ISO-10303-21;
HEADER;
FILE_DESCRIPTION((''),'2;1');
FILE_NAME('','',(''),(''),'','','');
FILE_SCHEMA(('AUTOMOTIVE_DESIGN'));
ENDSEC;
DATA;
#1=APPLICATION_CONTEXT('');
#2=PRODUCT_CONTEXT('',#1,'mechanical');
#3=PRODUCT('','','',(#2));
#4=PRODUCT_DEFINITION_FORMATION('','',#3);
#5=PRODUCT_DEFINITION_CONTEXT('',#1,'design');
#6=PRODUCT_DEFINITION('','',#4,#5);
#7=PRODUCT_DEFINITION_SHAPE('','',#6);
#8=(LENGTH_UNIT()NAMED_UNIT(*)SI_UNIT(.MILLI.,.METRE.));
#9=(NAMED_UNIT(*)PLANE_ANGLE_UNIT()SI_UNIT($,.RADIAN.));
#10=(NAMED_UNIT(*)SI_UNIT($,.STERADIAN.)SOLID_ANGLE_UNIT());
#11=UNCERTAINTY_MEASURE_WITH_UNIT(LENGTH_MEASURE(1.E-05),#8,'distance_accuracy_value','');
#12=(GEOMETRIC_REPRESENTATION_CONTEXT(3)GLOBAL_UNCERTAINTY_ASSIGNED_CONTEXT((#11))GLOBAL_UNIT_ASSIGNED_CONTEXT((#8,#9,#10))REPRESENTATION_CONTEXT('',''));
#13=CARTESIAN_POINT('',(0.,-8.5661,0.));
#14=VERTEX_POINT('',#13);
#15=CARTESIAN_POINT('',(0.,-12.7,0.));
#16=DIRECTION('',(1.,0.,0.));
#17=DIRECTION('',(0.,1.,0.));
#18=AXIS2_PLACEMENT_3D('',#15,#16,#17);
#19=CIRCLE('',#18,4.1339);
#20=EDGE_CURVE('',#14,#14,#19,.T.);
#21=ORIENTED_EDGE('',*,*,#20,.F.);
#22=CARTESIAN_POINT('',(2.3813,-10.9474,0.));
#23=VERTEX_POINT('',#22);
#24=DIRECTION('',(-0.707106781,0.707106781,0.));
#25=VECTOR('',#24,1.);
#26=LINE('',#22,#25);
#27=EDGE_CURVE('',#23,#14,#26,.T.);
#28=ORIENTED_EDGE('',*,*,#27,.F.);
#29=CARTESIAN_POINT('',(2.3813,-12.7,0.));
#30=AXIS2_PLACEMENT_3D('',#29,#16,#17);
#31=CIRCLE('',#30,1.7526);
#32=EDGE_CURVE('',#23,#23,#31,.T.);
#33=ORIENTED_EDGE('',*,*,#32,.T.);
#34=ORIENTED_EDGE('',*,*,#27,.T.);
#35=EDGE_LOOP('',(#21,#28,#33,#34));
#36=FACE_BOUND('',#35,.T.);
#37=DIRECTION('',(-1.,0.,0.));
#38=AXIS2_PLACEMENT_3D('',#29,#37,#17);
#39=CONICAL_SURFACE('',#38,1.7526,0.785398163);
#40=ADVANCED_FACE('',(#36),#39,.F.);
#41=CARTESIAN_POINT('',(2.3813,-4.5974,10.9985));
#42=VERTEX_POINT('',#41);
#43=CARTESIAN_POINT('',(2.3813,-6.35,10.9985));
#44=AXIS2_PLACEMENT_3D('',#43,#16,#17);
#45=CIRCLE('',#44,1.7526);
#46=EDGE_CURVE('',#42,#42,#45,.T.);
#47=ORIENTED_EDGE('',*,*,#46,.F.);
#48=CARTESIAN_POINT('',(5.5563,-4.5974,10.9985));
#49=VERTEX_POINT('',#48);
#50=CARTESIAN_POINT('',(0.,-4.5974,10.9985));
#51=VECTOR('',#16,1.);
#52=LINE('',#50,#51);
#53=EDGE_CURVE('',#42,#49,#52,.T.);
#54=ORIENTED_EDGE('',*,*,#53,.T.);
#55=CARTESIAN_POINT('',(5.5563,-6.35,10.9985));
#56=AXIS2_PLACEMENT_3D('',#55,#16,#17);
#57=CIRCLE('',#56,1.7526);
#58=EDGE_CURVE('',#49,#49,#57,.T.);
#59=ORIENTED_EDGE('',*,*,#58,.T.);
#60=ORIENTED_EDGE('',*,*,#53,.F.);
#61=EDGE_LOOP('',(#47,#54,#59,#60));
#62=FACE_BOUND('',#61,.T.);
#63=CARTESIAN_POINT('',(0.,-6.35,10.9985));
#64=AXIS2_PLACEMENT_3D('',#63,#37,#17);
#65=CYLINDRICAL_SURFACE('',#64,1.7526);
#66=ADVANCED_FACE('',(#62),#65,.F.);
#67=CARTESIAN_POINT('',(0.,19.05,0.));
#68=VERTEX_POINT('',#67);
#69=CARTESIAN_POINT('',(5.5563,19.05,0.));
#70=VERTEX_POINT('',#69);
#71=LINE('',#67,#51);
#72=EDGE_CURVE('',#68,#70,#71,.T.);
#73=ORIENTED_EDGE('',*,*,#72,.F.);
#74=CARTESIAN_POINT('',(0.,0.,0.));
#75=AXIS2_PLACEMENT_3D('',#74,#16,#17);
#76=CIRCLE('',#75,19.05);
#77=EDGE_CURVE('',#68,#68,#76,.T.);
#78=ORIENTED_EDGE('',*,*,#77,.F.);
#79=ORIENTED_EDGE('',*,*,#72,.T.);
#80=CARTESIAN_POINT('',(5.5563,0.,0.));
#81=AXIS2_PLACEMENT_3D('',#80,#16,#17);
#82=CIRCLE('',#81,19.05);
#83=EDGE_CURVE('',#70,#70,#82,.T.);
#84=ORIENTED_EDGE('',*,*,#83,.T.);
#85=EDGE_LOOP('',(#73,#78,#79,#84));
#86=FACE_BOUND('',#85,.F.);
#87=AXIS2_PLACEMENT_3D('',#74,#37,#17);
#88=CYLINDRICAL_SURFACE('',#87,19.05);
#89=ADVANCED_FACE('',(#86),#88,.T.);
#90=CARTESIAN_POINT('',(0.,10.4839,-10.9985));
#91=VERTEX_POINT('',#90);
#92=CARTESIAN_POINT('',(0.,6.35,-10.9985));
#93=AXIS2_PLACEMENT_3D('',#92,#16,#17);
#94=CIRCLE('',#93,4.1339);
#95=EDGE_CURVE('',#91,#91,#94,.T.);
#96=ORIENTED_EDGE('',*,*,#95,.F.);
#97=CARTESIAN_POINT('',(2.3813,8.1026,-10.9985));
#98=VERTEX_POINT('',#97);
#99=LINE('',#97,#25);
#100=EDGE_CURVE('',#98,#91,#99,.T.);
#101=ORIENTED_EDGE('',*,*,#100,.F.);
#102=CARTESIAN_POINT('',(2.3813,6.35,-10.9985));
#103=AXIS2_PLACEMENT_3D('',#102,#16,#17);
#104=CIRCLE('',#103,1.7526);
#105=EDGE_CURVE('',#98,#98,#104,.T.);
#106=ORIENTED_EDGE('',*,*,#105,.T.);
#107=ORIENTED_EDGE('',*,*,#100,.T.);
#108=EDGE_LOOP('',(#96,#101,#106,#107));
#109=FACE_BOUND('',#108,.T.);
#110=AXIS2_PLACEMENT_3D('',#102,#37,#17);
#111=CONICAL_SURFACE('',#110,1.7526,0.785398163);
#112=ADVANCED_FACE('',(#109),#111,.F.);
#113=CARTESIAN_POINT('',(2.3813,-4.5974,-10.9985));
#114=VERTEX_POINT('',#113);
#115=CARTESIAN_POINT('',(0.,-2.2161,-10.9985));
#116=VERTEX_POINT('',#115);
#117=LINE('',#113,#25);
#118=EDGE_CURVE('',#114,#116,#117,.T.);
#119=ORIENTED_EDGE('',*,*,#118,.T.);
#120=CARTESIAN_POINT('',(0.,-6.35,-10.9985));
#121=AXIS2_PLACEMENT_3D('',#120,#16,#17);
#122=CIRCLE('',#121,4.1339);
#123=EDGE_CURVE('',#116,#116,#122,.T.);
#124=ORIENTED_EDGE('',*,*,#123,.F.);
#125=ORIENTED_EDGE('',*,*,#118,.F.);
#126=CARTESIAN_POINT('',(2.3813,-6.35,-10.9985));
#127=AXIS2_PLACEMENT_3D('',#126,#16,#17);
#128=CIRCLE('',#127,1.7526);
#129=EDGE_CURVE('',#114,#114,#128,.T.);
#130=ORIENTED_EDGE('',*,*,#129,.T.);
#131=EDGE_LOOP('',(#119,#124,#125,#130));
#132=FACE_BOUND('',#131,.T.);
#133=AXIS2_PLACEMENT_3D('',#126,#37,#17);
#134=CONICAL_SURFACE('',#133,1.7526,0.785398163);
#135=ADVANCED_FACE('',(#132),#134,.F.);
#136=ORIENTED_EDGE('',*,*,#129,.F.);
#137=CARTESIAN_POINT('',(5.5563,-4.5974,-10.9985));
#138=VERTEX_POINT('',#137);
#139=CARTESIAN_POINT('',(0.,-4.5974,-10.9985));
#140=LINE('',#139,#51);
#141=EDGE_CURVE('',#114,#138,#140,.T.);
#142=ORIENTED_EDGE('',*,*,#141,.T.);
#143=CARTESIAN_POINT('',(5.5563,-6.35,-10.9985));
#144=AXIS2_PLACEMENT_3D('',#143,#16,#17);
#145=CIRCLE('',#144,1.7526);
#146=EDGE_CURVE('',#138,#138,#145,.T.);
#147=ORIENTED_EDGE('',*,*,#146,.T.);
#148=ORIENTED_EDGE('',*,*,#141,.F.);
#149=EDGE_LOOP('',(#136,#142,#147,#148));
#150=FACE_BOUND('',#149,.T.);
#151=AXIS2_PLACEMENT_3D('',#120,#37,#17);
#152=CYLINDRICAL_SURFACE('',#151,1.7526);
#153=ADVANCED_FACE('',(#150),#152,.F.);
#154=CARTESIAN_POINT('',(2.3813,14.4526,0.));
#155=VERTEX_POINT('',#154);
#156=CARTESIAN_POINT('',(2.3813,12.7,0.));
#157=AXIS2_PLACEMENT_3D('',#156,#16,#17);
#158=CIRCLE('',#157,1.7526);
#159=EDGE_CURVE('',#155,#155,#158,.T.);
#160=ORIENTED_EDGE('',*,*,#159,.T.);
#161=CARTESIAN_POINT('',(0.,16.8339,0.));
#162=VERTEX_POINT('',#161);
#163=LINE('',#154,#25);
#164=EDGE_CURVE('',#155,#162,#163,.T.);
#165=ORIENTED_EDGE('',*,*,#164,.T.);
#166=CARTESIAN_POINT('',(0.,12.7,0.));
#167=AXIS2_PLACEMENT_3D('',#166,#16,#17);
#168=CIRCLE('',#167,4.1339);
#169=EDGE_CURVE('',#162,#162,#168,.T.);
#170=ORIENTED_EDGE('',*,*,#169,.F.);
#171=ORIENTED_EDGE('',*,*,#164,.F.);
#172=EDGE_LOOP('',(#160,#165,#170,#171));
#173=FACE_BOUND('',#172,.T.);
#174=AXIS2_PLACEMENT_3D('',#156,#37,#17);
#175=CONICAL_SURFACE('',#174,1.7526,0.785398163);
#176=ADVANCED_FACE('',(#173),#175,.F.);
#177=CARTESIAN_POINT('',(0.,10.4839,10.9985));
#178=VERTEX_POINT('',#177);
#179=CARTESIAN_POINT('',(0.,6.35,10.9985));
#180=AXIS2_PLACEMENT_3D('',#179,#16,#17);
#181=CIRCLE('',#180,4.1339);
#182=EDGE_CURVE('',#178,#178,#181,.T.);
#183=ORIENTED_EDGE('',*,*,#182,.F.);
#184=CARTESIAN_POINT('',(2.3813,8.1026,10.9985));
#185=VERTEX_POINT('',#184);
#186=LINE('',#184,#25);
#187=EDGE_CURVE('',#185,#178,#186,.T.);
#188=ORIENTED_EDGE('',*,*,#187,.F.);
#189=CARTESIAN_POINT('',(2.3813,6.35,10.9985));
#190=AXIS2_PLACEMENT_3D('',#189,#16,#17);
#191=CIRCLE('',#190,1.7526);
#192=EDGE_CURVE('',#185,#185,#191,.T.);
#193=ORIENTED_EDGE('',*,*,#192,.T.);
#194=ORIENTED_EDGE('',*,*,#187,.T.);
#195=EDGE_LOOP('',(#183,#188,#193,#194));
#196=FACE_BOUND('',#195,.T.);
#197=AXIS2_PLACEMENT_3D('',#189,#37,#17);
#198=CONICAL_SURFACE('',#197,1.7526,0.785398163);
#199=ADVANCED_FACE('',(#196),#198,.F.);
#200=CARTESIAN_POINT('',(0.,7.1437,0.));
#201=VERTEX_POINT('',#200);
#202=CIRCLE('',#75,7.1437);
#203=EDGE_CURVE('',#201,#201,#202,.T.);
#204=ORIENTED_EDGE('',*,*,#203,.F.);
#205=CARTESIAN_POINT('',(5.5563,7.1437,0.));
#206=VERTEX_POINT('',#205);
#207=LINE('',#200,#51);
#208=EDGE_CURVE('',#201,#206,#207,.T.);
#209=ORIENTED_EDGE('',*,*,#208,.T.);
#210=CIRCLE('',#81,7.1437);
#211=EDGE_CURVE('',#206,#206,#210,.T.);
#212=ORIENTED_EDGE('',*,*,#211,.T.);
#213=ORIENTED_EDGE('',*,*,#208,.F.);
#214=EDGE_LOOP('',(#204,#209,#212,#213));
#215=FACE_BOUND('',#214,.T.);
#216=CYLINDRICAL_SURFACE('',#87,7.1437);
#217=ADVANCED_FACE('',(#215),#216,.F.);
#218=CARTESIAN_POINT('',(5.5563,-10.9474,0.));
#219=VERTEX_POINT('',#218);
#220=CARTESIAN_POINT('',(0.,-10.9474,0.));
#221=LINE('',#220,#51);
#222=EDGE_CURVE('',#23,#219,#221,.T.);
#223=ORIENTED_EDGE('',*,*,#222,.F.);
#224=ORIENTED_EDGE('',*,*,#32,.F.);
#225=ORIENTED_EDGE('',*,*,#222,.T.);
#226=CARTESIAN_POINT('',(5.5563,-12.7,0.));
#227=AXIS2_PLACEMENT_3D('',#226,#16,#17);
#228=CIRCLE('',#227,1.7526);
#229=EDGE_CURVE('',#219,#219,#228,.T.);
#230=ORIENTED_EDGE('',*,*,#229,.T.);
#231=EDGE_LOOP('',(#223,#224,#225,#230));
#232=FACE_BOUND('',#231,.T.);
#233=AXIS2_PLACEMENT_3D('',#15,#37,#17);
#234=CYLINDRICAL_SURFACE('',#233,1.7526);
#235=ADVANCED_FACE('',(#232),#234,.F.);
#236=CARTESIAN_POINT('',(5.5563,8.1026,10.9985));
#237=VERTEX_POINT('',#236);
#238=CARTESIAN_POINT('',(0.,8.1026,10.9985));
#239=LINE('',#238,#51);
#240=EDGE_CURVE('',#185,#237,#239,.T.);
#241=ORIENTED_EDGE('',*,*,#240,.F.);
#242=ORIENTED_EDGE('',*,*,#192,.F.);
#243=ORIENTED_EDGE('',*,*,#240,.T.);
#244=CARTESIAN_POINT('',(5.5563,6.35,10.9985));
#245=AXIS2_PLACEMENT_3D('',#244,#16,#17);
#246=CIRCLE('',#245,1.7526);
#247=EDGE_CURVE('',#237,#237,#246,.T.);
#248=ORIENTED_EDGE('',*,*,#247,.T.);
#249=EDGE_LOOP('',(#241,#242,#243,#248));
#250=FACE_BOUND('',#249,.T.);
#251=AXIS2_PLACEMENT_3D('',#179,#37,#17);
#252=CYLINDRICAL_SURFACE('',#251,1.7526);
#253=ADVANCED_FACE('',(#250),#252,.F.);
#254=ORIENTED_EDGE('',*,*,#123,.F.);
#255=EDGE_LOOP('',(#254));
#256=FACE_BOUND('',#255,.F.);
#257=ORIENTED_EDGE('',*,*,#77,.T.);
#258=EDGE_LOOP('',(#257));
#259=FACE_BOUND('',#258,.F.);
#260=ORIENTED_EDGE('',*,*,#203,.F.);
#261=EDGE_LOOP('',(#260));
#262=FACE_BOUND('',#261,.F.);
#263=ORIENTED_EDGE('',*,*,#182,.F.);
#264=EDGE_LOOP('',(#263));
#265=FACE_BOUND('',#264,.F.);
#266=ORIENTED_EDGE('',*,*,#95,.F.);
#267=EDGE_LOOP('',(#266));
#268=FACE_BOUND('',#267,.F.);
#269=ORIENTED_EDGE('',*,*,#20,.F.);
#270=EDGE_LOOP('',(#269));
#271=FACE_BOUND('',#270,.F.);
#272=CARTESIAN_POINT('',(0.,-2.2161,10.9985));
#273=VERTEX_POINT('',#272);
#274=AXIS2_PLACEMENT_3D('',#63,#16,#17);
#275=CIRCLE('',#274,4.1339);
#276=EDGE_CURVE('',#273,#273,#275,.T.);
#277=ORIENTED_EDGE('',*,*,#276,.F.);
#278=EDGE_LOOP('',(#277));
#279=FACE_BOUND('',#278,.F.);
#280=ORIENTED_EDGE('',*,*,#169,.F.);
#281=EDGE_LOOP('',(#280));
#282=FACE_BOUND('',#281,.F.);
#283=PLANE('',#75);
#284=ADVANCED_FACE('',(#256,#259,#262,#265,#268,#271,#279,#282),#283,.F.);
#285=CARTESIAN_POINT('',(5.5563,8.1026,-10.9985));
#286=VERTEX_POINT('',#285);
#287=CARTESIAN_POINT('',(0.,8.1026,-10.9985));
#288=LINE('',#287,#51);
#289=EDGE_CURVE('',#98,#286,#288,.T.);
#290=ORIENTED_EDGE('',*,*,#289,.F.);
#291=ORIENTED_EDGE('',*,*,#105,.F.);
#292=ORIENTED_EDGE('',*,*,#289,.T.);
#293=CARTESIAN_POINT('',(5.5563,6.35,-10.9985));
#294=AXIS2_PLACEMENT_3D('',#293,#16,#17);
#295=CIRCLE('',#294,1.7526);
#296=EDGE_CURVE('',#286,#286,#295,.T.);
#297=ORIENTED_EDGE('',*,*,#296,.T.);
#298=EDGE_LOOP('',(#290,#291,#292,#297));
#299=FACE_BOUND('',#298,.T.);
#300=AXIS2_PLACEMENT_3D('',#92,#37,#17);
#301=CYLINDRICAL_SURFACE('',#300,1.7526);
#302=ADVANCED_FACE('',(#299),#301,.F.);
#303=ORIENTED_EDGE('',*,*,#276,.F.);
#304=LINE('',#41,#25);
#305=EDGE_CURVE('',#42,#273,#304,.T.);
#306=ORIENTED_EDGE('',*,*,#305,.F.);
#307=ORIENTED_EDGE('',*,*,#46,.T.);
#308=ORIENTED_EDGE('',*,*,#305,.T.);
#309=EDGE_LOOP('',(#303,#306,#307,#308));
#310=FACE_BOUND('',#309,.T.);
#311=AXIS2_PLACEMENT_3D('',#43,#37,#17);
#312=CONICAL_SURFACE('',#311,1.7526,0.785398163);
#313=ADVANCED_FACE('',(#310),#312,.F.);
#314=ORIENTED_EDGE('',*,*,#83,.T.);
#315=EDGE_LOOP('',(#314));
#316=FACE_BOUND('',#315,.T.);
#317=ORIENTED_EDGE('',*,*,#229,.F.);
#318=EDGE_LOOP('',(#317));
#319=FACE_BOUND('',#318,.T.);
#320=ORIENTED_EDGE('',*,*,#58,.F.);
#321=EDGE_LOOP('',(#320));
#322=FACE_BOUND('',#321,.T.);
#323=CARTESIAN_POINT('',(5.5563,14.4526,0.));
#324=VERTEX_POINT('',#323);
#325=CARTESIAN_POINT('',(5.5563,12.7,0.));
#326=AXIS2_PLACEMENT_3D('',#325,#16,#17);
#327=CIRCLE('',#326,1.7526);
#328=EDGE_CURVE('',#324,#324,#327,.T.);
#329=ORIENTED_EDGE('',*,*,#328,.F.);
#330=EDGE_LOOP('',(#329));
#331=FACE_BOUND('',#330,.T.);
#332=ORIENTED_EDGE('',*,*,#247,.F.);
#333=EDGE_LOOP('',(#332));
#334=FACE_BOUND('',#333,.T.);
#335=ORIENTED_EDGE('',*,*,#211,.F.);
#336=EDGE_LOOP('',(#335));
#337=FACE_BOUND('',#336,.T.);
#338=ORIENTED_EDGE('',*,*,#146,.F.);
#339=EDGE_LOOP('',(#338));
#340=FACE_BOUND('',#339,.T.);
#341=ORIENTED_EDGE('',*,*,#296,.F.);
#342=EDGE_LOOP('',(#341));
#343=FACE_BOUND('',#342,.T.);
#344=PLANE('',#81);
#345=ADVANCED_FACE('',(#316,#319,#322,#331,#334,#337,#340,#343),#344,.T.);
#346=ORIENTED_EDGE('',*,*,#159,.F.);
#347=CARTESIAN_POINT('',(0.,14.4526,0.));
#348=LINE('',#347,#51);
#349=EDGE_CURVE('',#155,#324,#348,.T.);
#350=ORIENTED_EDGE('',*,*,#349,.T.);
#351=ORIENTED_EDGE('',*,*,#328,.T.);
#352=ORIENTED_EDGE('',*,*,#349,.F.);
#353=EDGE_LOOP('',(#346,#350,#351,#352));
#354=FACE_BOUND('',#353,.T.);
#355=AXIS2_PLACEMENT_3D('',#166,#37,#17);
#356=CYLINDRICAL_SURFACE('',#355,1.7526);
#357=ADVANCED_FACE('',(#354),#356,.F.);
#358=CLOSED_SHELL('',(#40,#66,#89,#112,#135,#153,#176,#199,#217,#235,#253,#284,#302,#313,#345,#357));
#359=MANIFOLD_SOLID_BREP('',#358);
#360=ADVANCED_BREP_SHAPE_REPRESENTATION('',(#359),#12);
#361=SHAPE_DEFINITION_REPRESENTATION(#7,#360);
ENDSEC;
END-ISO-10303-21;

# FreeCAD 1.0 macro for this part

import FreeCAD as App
import Part
import Sketcher
Q = App.Units.Quantity


def edges_at(feature, points):
    """Names of the edges that pass closest to the given points."""
    edges = feature.Shape.Edges
    near = lambda p: min(range(len(edges)), key=lambda i: edges[i].distToShape(Part.Vertex(*p))[0])
    return sorted({f"Edge{near(p) + 1}" for p in points})

doc = App.newDocument("Part")
body = doc.addObject("PartDesign::Body", "Body")

sketch1 = body.newObject("Sketcher::SketchObject", "Sketch")
sketch1.AttachmentSupport = (doc.getObject("YZ_Plane"), [""])
sketch1.MapMode = "FlatFace"
sketch1.addGeometry([
    Part.Circle(App.Vector(0, 0, 0), App.Vector(0, 0, 1), 19.05),
    Part.Circle(App.Vector(-6.35, -10.9985, 0), App.Vector(0, 0, 1), 1.7526),
    Part.Circle(App.Vector(6.35, -10.9985, 0), App.Vector(0, 0, 1), 1.7526),
    Part.Circle(App.Vector(-12.7, 0, 0), App.Vector(0, 0, 1), 1.7526),
    Part.Circle(App.Vector(-6.35, 10.9985, 0), App.Vector(0, 0, 1), 1.7526),
    Part.Circle(App.Vector(0, 0, 0), App.Vector(0, 0, 1), 7.1437),
    Part.Circle(App.Vector(12.7, 0, 0), App.Vector(0, 0, 1), 1.7526),
    Part.Circle(App.Vector(6.35, 10.9985, 0), App.Vector(0, 0, 1), 1.7526),
], False)
sketch1.addConstraint([
    Sketcher.Constraint("Coincident", 0, 3, -1, 1),
    Sketcher.Constraint("Coincident", 5, 3, -1, 1),
    Sketcher.Constraint("Equal", 1, 2),
    Sketcher.Constraint("Equal", 2, 3),
    Sketcher.Constraint("Equal", 3, 4),
    Sketcher.Constraint("Equal", 4, 6),
    Sketcher.Constraint("Equal", 6, 7),
    Sketcher.Constraint("Symmetric", 2, 3, 4, 3, -1, 1),
    Sketcher.Constraint("Symmetric", 3, 3, 6, 3, -1, 1),
    Sketcher.Constraint("Symmetric", 1, 3, 7, 3, -1, 1),
    Sketcher.Constraint("Symmetric", 1, 3, 2, 3, -2),
    Sketcher.Constraint("PointOnObject", 3, 3, -1),
    Sketcher.Constraint("Diameter", 0, Q("1.5 in")),
    Sketcher.Constraint("Diameter", 1, Q("0.138 in")),
    Sketcher.Constraint("Diameter", 5, Q("0.5625 in")),
    Sketcher.Constraint("DistanceX", 3, 3, -1, 1, Q("0.5 in")),
    Sketcher.Constraint("DistanceX", 1, 3, 2, 3, Q("0.5 in")),
    Sketcher.Constraint("DistanceY", 1, 3, -1, 1, Q("0.433 in")),
])
pad1 = body.newObject("PartDesign::Pad", "Pad")
pad1.Profile = sketch1
pad1.Length = Q("0.218752 in")
doc.recompute()

chamfer = body.newObject("PartDesign::Chamfer", "Chamfer")
chamfer.Base = (pad1, edges_at(pad1, [
    (0, 10.947, 0),
    (0, 4.597, 10.998),
    (0, -14.453, 0),
    (0, -8.103, 10.998),
    (0, 4.597, -10.998),
    (0, -8.103, -10.998),
]))
chamfer.Size = Q("0.093752 in")

doc.recompute()
